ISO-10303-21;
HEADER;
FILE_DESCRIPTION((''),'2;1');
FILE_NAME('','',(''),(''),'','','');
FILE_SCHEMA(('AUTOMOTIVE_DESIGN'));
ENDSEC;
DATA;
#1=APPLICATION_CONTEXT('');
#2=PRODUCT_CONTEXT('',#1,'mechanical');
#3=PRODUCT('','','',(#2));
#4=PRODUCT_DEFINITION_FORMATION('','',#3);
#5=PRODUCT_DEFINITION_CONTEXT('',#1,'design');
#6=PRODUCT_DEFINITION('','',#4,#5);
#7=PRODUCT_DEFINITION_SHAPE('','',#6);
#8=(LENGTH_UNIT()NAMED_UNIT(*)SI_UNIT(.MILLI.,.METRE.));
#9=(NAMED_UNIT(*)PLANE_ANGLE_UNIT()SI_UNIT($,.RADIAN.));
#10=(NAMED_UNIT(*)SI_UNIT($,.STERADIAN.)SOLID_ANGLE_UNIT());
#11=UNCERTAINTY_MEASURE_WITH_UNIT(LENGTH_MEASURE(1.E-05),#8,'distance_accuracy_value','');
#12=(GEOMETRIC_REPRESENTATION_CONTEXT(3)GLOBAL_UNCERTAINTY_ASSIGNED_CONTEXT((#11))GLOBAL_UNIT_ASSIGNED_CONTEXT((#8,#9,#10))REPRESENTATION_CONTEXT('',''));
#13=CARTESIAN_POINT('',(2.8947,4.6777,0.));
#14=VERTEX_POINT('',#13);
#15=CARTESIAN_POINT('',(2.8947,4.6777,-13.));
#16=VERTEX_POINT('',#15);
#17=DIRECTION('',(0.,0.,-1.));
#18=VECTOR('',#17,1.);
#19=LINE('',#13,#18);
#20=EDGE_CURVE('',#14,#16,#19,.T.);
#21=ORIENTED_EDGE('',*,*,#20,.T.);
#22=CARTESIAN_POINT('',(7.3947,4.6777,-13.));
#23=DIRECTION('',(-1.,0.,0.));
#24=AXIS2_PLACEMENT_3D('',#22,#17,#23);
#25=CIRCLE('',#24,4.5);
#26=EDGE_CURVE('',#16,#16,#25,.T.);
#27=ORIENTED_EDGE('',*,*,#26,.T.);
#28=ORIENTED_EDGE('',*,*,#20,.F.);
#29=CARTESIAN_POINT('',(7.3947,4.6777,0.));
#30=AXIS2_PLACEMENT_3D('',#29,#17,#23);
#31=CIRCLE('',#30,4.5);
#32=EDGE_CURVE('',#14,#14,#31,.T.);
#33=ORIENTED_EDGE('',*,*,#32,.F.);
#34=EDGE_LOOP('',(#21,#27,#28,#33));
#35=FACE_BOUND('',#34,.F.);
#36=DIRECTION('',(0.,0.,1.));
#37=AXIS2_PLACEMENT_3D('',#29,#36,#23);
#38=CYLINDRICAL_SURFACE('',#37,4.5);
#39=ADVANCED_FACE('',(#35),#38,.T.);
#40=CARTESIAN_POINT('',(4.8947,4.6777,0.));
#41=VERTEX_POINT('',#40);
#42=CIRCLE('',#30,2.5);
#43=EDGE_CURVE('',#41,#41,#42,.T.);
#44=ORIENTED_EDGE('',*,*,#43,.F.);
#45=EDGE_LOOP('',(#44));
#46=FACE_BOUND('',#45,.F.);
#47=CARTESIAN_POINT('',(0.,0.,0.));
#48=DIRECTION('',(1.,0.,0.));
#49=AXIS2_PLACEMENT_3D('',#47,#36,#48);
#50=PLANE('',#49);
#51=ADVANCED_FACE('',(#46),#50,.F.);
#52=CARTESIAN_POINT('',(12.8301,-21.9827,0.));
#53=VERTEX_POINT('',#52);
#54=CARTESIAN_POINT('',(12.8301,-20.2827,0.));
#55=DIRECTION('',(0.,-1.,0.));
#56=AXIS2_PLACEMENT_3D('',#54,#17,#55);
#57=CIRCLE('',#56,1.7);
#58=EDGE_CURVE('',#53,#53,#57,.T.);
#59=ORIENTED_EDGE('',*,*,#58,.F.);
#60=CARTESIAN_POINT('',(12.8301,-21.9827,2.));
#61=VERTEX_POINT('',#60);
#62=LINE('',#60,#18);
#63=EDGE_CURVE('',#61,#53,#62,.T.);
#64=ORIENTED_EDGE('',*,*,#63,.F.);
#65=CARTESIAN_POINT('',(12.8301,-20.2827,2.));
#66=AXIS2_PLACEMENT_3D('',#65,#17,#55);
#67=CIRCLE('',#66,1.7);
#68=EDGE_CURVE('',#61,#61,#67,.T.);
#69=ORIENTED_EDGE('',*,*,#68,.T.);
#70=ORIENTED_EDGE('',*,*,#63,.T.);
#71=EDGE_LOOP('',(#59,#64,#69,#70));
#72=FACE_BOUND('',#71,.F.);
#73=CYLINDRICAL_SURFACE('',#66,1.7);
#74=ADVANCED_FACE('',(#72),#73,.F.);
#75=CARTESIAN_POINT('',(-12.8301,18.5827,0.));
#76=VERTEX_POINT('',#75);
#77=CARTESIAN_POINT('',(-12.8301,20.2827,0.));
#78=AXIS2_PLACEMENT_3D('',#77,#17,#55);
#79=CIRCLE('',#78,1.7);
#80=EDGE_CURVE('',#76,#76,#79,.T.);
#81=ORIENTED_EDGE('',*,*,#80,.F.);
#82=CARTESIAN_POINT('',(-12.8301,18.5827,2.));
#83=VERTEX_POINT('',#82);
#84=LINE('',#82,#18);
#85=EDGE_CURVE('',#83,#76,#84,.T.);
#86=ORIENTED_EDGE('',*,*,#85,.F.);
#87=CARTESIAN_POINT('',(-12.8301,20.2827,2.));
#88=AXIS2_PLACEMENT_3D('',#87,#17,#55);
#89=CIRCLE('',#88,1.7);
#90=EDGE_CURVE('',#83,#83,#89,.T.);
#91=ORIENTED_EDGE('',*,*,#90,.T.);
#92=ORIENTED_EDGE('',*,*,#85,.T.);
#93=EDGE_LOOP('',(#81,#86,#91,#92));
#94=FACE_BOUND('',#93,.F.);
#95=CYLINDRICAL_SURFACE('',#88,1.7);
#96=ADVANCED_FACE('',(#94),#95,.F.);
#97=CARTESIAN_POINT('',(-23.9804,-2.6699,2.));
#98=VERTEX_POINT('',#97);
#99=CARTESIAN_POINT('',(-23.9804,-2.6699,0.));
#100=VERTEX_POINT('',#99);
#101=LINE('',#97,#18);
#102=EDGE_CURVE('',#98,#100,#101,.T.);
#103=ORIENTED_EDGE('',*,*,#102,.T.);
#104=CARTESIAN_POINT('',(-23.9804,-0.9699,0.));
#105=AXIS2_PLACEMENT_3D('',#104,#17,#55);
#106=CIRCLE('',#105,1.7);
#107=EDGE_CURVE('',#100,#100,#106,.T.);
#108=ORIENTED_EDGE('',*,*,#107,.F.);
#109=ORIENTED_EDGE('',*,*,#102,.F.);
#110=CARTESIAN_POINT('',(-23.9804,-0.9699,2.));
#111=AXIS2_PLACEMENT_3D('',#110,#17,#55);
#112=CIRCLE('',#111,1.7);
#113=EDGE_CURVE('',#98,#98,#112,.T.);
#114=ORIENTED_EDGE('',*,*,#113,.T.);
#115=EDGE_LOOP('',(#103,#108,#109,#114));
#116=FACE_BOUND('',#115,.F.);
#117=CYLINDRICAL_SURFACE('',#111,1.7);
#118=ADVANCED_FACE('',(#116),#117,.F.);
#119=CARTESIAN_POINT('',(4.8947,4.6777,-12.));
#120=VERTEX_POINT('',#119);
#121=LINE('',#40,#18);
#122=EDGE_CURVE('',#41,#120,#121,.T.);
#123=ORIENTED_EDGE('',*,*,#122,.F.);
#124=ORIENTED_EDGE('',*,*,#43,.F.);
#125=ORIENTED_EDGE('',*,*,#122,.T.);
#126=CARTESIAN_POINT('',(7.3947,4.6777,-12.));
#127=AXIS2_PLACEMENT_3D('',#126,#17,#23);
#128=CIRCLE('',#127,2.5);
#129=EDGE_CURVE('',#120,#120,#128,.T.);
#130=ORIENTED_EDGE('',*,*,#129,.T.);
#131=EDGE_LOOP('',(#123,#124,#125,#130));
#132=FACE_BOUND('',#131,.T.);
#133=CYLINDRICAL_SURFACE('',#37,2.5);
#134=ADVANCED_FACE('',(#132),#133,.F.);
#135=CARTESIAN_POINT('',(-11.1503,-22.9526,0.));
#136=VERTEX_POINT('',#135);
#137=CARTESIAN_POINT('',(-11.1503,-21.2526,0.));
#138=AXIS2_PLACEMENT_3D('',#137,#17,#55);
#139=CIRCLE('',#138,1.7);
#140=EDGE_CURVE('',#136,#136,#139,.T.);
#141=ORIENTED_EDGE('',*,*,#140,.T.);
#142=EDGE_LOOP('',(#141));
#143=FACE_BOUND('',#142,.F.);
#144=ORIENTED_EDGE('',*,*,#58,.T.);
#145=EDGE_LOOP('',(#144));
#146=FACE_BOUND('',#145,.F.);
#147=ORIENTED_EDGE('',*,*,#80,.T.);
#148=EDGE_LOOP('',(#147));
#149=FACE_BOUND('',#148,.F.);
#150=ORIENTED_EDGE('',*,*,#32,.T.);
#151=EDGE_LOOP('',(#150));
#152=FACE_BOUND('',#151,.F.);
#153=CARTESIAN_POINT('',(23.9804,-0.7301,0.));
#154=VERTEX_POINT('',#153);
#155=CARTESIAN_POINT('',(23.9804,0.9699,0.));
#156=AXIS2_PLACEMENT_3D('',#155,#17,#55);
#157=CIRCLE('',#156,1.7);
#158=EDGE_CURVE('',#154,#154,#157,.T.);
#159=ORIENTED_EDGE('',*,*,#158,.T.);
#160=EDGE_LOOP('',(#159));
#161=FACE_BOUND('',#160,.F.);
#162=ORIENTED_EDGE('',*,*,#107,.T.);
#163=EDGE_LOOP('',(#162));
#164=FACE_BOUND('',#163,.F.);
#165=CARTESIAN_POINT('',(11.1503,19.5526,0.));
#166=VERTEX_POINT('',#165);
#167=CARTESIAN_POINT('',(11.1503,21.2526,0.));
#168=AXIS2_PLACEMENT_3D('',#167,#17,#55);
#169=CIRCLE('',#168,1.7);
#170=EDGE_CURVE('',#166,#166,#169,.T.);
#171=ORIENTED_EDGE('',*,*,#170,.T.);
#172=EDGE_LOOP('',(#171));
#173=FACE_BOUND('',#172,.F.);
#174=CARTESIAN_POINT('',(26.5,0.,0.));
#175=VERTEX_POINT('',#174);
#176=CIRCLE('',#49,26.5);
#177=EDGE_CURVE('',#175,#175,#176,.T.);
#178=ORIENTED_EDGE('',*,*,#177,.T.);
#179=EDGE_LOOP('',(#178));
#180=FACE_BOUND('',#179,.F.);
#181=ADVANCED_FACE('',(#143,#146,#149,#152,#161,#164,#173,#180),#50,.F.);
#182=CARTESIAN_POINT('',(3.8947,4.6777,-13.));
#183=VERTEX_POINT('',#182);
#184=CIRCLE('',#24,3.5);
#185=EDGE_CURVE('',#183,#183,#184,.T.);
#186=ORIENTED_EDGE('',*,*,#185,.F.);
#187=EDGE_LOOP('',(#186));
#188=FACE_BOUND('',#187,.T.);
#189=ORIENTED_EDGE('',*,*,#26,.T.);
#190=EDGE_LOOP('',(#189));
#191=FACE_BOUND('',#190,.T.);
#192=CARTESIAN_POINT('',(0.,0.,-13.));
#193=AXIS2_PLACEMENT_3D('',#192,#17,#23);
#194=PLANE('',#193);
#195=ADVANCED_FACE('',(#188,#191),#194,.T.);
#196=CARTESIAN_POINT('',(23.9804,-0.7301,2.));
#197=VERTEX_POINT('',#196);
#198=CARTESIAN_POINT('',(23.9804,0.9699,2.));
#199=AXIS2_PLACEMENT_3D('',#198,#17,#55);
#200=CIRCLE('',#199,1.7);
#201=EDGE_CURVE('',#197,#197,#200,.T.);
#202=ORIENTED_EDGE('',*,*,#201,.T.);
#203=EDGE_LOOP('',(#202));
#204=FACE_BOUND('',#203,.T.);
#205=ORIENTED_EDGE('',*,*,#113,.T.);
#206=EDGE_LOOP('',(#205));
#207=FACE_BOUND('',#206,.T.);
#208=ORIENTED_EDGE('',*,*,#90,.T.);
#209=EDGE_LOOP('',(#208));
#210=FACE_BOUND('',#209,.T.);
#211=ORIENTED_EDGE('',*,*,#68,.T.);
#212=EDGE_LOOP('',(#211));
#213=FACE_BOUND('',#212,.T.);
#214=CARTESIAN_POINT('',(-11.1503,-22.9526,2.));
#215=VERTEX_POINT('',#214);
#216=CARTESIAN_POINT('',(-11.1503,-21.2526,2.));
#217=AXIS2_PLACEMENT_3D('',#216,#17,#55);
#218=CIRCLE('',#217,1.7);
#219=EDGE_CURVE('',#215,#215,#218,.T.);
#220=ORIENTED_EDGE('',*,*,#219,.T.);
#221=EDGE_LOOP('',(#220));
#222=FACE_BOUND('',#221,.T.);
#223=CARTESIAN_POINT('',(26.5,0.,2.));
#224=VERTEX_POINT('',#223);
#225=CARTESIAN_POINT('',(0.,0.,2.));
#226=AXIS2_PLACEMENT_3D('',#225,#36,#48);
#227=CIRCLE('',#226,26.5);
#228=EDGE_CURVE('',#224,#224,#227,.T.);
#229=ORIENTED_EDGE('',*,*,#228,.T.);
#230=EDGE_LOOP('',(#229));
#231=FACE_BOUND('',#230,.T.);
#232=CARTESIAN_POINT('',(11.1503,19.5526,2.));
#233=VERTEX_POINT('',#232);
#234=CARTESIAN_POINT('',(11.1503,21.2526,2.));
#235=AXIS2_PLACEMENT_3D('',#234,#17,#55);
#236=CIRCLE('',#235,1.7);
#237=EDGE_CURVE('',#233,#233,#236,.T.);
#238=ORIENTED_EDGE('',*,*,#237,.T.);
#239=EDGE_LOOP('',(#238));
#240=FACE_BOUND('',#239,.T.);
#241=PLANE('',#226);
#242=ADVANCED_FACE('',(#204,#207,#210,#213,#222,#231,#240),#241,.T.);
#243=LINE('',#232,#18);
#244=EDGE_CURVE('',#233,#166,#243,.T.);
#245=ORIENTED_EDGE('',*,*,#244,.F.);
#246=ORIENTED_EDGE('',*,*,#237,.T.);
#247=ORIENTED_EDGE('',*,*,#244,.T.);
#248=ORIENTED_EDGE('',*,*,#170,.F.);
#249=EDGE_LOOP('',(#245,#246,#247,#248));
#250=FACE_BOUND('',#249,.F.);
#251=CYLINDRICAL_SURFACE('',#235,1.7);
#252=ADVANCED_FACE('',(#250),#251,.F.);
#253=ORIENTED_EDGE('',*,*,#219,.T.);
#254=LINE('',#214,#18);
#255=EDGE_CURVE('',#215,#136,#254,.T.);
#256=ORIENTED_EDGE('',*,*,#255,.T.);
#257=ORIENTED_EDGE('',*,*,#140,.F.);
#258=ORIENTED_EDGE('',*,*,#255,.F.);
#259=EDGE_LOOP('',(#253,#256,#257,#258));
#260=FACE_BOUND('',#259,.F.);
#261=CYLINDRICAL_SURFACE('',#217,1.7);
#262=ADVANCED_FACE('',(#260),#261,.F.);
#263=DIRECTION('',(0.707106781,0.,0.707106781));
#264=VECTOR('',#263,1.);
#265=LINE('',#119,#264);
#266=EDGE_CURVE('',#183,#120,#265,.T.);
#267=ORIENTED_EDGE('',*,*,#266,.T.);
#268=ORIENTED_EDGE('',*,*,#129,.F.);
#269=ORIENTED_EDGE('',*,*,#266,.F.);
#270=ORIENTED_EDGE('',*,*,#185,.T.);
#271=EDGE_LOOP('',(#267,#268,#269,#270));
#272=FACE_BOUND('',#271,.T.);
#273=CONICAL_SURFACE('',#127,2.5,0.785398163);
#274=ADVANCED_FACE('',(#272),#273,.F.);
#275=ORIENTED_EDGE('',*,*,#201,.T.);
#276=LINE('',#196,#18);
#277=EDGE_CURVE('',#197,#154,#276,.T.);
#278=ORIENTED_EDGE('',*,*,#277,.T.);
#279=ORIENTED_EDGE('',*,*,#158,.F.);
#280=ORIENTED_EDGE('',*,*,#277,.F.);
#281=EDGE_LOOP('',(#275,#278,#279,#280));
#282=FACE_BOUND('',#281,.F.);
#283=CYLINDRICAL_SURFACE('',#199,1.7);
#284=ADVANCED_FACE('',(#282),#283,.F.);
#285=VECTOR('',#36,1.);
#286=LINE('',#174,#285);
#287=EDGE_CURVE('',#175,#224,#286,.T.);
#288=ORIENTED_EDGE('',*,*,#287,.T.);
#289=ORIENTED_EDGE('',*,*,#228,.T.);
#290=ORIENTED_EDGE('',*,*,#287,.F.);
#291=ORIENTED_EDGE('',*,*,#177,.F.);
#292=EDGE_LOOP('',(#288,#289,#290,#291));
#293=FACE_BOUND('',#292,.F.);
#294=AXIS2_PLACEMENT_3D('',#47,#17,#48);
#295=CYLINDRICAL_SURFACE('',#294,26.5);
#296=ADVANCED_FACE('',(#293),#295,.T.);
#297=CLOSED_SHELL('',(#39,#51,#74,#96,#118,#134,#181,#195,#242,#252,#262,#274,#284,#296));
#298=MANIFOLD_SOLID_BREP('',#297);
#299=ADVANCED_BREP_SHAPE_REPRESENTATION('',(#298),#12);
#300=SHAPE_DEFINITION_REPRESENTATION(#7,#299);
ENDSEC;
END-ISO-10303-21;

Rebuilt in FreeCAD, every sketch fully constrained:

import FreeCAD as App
import Part
import Sketcher
from FreeCAD import Vector


def edges_at(feature, points):
    """Names of the edges that pass closest to the given points."""
    edges = feature.Shape.Edges
    near = lambda p: min(range(len(edges)), key=lambda i: edges[i].distToShape(Part.Vertex(*p))[0])
    return sorted({f"Edge{near(p) + 1}" for p in points})

doc = App.newDocument("Part")
body = doc.addObject("PartDesign::Body", "Body")

# Sketch on XY plane
sketch1 = body.newObject("Sketcher::SketchObject", "Sketch")
sketch1.AttachmentSupport = (doc.getObject("XY_Plane"), [""])
sketch1.MapMode = "FlatFace"
sketch1.addGeometry(Part.Circle(Vector(0, 0, 0), Vector(0, 0, 1), 26), False)
sketch1.addConstraint(Sketcher.Constraint("Coincident", 0, 3, -1, 1))
sketch1.addConstraint(Sketcher.Constraint("Diameter", 0, 53.0))
pad1 = body.newObject("PartDesign::Pad", "Pad")
pad1.Profile = sketch1
pad1.Length = 2

# Sketch on XY plane
sketch2 = body.newObject("Sketcher::SketchObject", "Sketch001")
sketch2.AttachmentSupport = (doc.getObject("XY_Plane"), [""])
sketch2.MapMode = "FlatFace"
sketch2.AttachmentOffset = App.Placement(Vector(0, 0, 2), App.Rotation())
sketch2.addGeometry(Part.Circle(Vector(24, 1, 0), Vector(0, 0, 1), 1.7), False)
sketch2.addGeometry(Part.Circle(Vector(12.8, -20.3, 0), Vector(0, 0, 1), 1.7), False)
sketch2.addGeometry(Part.Circle(Vector(-11.2, -21.3, 0), Vector(0, 0, 1), 1.7), False)
sketch2.addGeometry(Part.Circle(Vector(-24, -1, 0), Vector(0, 0, 1), 1.7), False)
sketch2.addGeometry(Part.Circle(Vector(-12.8, 20.3, 0), Vector(0, 0, 1), 1.7), False)
sketch2.addGeometry(Part.Circle(Vector(11.2, 21.3, 0), Vector(0, 0, 1), 1.7), False)
sketch2.addConstraint(Sketcher.Constraint("Equal", 0, 1))
sketch2.addConstraint(Sketcher.Constraint("Equal", 1, 2))
sketch2.addConstraint(Sketcher.Constraint("Equal", 2, 3))
sketch2.addConstraint(Sketcher.Constraint("Equal", 3, 4))
sketch2.addConstraint(Sketcher.Constraint("Equal", 4, 5))
sketch2.addConstraint(Sketcher.Constraint("Symmetric", 0, 3, 3, 3, -1, 1))
sketch2.addConstraint(Sketcher.Constraint("Symmetric", 1, 3, 4, 3, -1, 1))
sketch2.addConstraint(Sketcher.Constraint("Symmetric", 2, 3, 5, 3, -1, 1))
sketch2.addConstraint(Sketcher.Constraint("Diameter", 0, 3.4))
sketch2.addConstraint(Sketcher.Constraint("DistanceY", -1, 1, 0, 3, 0.97))
sketch2.addConstraint(Sketcher.Constraint("DistanceX", -1, 1, 1, 3, 12.83))
sketch2.addConstraint(Sketcher.Constraint("DistanceY", 2, 3, 1, 3, 0.97))
sketch2.addConstraint(Sketcher.Constraint("DistanceX", 3, 3, 2, 3, 12.83))
sketch2.addConstraint(Sketcher.Constraint("DistanceX", -1, 1, 0, 3, 23.9804))
sketch2.addConstraint(Sketcher.Constraint("DistanceY", 1, 3, -1, 1, 20.2827))
doc.recompute()
hole = body.newObject("PartDesign::Hole", "Hole")
hole.Profile = sketch2
hole.ThreadType = "None"
hole.Diameter = 3.4
hole.DepthType = "ThroughAll"

# Sketch on XY plane
sketch3 = body.newObject("Sketcher::SketchObject", "Sketch002")
sketch3.AttachmentSupport = (doc.getObject("XY_Plane"), [""])
sketch3.MapMode = "FlatFace"
sketch3.addGeometry(Part.Circle(Vector(7.4, 4.7, 0), Vector(0, 0, 1), 4.5), False)
sketch3.addGeometry(Part.Circle(Vector(7.4, 4.7, 0), Vector(0, 0, 1), 2.5), False)
sketch3.addConstraint(Sketcher.Constraint("Coincident", 1, 3, 0, 3))
sketch3.addConstraint(Sketcher.Constraint("Diameter", 1, 5.0))
sketch3.addConstraint(Sketcher.Constraint("Diameter", 0, 9.0))
sketch3.addConstraint(Sketcher.Constraint("DistanceX", -1, 1, 0, 3, 7.3947))
sketch3.addConstraint(Sketcher.Constraint("DistanceY", -1, 1, 0, 3, 4.6777))
pad2 = body.newObject("PartDesign::Pad", "Pad001")
pad2.Profile = sketch3
pad2.Length = 13
pad2.Reversed = True
doc.recompute()

chamfer = body.newObject("PartDesign::Chamfer", "Chamfer")
chamfer.Base = (pad2, edges_at(pad2, [(9.895, 4.678, -13)]))
chamfer.Size = 1

doc.recompute()
